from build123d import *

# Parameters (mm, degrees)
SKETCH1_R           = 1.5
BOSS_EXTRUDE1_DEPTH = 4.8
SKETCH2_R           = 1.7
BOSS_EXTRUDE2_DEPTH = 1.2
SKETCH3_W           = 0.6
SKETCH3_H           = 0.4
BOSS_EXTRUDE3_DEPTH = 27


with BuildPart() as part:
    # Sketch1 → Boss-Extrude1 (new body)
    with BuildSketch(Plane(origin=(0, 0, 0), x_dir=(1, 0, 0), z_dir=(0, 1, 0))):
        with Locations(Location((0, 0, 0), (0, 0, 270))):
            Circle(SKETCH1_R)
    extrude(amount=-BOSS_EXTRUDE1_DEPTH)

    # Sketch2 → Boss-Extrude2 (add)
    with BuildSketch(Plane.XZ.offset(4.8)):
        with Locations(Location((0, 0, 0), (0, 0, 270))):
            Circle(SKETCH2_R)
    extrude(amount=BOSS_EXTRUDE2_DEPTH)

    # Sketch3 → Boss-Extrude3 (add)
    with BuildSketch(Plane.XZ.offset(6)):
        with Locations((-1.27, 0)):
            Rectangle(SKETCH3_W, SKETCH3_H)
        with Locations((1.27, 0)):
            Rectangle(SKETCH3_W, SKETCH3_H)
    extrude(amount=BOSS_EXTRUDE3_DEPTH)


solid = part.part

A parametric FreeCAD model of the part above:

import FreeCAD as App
import Part
import Sketcher

V = App.Vector


def add_polygon(sketch, points):
    """Adds a closed chain of lines whose ends are joined by coincident constraints."""
    first, n = sketch.GeometryCount, len(points)
    for a, b in zip(points, points[1:] + points[:1]):
        sketch.addGeometry(Part.LineSegment(App.Vector(*a, 0), App.Vector(*b, 0)), False)
    for i in range(n):
        sketch.addConstraint(Sketcher.Constraint("Coincident", first + i, 2, first + (i + 1) % n, 1))

doc = App.newDocument("Part")
body = doc.addObject("PartDesign::Body", "Body")

# Sketch on XZ plane
sketch1 = doc.addObject("Sketcher::SketchObject", "Sketch")
body.addObject(sketch1)
sketch1.AttachmentSupport = (doc.XZ_Plane, [""])
sketch1.MapMode = "FlatFace"
sketch1.addGeometry(Part.Circle(V(0, 0, 0), V(0, 0, 1), 1.5), False)
sketch1.addConstraint([
    Sketcher.Constraint("Coincident", 0, 3, -1, 1),
    Sketcher.Constraint("Diameter", 0, 3.0),
])
pad1 = doc.addObject("PartDesign::Pad", "Pad")
body.addObject(pad1)
pad1.Profile = sketch1
pad1.Length = 4.8

# Sketch on XZ plane
sketch2 = doc.addObject("Sketcher::SketchObject", "Sketch001")
body.addObject(sketch2)
sketch2.AttachmentSupport = (doc.XZ_Plane, [""])
sketch2.MapMode = "FlatFace"
sketch2.AttachmentOffset = App.Placement(V(0, 0, 4.8), App.Rotation())
sketch2.addGeometry(Part.Circle(V(0, 0, 0), V(0, 0, 1), 1.7), False)
sketch2.addConstraint([
    Sketcher.Constraint("Coincident", 0, 3, -1, 1),
    Sketcher.Constraint("Diameter", 0, 3.4),
])
pad2 = doc.addObject("PartDesign::Pad", "Pad001")
body.addObject(pad2)
pad2.Profile = sketch2
pad2.Length = 1.2

# Sketch on XZ plane
sketch3 = doc.addObject("Sketcher::SketchObject", "Sketch002")
body.addObject(sketch3)
sketch3.AttachmentSupport = (doc.XZ_Plane, [""])
sketch3.MapMode = "FlatFace"
sketch3.AttachmentOffset = App.Placement(V(0, 0, 6), App.Rotation())
add_polygon(sketch3, [(-1.57, 0.2), (-1.57, -0.2), (-0.97, -0.2), (-0.97, 0.2)])  # lines 0-3
add_polygon(sketch3, [(0.97, 0.2), (0.97, -0.2), (1.57, -0.2), (1.57, 0.2)])  # lines 4-7
sketch3.addConstraint([
    Sketcher.Constraint("Vertical", 0),
    Sketcher.Constraint("Horizontal", 1),
    Sketcher.Constraint("Vertical", 2),
    Sketcher.Constraint("Horizontal", 3),
    Sketcher.Constraint("Vertical", 4),
    Sketcher.Constraint("Horizontal", 5),
    Sketcher.Constraint("Vertical", 6),
    Sketcher.Constraint("Horizontal", 7),
    Sketcher.Constraint("Symmetric", 2, 2, 4, 2, -1, 1),
    Sketcher.Constraint("Symmetric", 0, 2, 6, 2, -1, 1),
    Sketcher.Constraint("Horizontal", 1, 2, 4, 2),
    Sketcher.Constraint("DistanceX", 1, 1, 1, 2, 0.6),
    Sketcher.Constraint("DistanceY", 0, 2, 0, 1, 0.4),
    Sketcher.Constraint("DistanceX", 0, 2, -1, 1, 1.57),
])
pad3 = doc.addObject("PartDesign::Pad", "Pad002")
body.addObject(pad3)
pad3.Profile = sketch3
pad3.Length = 27

doc.recompute()
